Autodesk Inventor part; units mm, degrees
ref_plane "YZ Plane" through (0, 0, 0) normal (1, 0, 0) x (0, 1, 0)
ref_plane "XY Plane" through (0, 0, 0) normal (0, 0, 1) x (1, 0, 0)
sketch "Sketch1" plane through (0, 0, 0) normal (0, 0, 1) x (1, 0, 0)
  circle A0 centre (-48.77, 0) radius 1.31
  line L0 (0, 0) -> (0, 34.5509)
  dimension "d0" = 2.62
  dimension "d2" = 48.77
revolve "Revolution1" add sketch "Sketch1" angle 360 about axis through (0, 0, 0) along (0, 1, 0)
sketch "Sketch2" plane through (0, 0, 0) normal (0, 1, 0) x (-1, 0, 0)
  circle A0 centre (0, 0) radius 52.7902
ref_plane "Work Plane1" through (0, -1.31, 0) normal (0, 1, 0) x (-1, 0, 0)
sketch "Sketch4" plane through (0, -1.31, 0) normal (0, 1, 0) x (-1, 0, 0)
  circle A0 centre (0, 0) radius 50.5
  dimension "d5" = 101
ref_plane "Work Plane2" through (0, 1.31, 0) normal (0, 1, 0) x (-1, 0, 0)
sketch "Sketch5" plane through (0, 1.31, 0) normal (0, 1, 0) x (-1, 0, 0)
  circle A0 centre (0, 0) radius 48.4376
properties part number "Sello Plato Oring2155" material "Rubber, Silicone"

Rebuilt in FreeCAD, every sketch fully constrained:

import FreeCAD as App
import Part
import Sketcher
from FreeCAD import Vector

doc = App.newDocument("Part")
body = doc.addObject("PartDesign::Body", "Body")

sketch1 = body.newObject("Sketcher::SketchObject", "Sketch")
sketch1.AttachmentSupport = (doc.getObject("XY_Plane"), [""])
sketch1.MapMode = "FlatFace"
sketch1.addGeometry(Part.Circle(Vector(-48.8, 0, 0), Vector(0, 0, 1), 1.3), False)
sketch1.addConstraint(Sketcher.Constraint("PointOnObject", 0, 3, -1))
sketch1.addConstraint(Sketcher.Constraint("Diameter", 0, 2.62))
sketch1.addConstraint(Sketcher.Constraint("DistanceX", 0, 3, -1, 1, 48.77))
revolution = body.newObject("PartDesign::Revolution", "Revolution")
revolution.Profile = sketch1
revolution.ReferenceAxis = (sketch1, ["V_Axis"])
revolution.Angle = 360

doc.recompute()
